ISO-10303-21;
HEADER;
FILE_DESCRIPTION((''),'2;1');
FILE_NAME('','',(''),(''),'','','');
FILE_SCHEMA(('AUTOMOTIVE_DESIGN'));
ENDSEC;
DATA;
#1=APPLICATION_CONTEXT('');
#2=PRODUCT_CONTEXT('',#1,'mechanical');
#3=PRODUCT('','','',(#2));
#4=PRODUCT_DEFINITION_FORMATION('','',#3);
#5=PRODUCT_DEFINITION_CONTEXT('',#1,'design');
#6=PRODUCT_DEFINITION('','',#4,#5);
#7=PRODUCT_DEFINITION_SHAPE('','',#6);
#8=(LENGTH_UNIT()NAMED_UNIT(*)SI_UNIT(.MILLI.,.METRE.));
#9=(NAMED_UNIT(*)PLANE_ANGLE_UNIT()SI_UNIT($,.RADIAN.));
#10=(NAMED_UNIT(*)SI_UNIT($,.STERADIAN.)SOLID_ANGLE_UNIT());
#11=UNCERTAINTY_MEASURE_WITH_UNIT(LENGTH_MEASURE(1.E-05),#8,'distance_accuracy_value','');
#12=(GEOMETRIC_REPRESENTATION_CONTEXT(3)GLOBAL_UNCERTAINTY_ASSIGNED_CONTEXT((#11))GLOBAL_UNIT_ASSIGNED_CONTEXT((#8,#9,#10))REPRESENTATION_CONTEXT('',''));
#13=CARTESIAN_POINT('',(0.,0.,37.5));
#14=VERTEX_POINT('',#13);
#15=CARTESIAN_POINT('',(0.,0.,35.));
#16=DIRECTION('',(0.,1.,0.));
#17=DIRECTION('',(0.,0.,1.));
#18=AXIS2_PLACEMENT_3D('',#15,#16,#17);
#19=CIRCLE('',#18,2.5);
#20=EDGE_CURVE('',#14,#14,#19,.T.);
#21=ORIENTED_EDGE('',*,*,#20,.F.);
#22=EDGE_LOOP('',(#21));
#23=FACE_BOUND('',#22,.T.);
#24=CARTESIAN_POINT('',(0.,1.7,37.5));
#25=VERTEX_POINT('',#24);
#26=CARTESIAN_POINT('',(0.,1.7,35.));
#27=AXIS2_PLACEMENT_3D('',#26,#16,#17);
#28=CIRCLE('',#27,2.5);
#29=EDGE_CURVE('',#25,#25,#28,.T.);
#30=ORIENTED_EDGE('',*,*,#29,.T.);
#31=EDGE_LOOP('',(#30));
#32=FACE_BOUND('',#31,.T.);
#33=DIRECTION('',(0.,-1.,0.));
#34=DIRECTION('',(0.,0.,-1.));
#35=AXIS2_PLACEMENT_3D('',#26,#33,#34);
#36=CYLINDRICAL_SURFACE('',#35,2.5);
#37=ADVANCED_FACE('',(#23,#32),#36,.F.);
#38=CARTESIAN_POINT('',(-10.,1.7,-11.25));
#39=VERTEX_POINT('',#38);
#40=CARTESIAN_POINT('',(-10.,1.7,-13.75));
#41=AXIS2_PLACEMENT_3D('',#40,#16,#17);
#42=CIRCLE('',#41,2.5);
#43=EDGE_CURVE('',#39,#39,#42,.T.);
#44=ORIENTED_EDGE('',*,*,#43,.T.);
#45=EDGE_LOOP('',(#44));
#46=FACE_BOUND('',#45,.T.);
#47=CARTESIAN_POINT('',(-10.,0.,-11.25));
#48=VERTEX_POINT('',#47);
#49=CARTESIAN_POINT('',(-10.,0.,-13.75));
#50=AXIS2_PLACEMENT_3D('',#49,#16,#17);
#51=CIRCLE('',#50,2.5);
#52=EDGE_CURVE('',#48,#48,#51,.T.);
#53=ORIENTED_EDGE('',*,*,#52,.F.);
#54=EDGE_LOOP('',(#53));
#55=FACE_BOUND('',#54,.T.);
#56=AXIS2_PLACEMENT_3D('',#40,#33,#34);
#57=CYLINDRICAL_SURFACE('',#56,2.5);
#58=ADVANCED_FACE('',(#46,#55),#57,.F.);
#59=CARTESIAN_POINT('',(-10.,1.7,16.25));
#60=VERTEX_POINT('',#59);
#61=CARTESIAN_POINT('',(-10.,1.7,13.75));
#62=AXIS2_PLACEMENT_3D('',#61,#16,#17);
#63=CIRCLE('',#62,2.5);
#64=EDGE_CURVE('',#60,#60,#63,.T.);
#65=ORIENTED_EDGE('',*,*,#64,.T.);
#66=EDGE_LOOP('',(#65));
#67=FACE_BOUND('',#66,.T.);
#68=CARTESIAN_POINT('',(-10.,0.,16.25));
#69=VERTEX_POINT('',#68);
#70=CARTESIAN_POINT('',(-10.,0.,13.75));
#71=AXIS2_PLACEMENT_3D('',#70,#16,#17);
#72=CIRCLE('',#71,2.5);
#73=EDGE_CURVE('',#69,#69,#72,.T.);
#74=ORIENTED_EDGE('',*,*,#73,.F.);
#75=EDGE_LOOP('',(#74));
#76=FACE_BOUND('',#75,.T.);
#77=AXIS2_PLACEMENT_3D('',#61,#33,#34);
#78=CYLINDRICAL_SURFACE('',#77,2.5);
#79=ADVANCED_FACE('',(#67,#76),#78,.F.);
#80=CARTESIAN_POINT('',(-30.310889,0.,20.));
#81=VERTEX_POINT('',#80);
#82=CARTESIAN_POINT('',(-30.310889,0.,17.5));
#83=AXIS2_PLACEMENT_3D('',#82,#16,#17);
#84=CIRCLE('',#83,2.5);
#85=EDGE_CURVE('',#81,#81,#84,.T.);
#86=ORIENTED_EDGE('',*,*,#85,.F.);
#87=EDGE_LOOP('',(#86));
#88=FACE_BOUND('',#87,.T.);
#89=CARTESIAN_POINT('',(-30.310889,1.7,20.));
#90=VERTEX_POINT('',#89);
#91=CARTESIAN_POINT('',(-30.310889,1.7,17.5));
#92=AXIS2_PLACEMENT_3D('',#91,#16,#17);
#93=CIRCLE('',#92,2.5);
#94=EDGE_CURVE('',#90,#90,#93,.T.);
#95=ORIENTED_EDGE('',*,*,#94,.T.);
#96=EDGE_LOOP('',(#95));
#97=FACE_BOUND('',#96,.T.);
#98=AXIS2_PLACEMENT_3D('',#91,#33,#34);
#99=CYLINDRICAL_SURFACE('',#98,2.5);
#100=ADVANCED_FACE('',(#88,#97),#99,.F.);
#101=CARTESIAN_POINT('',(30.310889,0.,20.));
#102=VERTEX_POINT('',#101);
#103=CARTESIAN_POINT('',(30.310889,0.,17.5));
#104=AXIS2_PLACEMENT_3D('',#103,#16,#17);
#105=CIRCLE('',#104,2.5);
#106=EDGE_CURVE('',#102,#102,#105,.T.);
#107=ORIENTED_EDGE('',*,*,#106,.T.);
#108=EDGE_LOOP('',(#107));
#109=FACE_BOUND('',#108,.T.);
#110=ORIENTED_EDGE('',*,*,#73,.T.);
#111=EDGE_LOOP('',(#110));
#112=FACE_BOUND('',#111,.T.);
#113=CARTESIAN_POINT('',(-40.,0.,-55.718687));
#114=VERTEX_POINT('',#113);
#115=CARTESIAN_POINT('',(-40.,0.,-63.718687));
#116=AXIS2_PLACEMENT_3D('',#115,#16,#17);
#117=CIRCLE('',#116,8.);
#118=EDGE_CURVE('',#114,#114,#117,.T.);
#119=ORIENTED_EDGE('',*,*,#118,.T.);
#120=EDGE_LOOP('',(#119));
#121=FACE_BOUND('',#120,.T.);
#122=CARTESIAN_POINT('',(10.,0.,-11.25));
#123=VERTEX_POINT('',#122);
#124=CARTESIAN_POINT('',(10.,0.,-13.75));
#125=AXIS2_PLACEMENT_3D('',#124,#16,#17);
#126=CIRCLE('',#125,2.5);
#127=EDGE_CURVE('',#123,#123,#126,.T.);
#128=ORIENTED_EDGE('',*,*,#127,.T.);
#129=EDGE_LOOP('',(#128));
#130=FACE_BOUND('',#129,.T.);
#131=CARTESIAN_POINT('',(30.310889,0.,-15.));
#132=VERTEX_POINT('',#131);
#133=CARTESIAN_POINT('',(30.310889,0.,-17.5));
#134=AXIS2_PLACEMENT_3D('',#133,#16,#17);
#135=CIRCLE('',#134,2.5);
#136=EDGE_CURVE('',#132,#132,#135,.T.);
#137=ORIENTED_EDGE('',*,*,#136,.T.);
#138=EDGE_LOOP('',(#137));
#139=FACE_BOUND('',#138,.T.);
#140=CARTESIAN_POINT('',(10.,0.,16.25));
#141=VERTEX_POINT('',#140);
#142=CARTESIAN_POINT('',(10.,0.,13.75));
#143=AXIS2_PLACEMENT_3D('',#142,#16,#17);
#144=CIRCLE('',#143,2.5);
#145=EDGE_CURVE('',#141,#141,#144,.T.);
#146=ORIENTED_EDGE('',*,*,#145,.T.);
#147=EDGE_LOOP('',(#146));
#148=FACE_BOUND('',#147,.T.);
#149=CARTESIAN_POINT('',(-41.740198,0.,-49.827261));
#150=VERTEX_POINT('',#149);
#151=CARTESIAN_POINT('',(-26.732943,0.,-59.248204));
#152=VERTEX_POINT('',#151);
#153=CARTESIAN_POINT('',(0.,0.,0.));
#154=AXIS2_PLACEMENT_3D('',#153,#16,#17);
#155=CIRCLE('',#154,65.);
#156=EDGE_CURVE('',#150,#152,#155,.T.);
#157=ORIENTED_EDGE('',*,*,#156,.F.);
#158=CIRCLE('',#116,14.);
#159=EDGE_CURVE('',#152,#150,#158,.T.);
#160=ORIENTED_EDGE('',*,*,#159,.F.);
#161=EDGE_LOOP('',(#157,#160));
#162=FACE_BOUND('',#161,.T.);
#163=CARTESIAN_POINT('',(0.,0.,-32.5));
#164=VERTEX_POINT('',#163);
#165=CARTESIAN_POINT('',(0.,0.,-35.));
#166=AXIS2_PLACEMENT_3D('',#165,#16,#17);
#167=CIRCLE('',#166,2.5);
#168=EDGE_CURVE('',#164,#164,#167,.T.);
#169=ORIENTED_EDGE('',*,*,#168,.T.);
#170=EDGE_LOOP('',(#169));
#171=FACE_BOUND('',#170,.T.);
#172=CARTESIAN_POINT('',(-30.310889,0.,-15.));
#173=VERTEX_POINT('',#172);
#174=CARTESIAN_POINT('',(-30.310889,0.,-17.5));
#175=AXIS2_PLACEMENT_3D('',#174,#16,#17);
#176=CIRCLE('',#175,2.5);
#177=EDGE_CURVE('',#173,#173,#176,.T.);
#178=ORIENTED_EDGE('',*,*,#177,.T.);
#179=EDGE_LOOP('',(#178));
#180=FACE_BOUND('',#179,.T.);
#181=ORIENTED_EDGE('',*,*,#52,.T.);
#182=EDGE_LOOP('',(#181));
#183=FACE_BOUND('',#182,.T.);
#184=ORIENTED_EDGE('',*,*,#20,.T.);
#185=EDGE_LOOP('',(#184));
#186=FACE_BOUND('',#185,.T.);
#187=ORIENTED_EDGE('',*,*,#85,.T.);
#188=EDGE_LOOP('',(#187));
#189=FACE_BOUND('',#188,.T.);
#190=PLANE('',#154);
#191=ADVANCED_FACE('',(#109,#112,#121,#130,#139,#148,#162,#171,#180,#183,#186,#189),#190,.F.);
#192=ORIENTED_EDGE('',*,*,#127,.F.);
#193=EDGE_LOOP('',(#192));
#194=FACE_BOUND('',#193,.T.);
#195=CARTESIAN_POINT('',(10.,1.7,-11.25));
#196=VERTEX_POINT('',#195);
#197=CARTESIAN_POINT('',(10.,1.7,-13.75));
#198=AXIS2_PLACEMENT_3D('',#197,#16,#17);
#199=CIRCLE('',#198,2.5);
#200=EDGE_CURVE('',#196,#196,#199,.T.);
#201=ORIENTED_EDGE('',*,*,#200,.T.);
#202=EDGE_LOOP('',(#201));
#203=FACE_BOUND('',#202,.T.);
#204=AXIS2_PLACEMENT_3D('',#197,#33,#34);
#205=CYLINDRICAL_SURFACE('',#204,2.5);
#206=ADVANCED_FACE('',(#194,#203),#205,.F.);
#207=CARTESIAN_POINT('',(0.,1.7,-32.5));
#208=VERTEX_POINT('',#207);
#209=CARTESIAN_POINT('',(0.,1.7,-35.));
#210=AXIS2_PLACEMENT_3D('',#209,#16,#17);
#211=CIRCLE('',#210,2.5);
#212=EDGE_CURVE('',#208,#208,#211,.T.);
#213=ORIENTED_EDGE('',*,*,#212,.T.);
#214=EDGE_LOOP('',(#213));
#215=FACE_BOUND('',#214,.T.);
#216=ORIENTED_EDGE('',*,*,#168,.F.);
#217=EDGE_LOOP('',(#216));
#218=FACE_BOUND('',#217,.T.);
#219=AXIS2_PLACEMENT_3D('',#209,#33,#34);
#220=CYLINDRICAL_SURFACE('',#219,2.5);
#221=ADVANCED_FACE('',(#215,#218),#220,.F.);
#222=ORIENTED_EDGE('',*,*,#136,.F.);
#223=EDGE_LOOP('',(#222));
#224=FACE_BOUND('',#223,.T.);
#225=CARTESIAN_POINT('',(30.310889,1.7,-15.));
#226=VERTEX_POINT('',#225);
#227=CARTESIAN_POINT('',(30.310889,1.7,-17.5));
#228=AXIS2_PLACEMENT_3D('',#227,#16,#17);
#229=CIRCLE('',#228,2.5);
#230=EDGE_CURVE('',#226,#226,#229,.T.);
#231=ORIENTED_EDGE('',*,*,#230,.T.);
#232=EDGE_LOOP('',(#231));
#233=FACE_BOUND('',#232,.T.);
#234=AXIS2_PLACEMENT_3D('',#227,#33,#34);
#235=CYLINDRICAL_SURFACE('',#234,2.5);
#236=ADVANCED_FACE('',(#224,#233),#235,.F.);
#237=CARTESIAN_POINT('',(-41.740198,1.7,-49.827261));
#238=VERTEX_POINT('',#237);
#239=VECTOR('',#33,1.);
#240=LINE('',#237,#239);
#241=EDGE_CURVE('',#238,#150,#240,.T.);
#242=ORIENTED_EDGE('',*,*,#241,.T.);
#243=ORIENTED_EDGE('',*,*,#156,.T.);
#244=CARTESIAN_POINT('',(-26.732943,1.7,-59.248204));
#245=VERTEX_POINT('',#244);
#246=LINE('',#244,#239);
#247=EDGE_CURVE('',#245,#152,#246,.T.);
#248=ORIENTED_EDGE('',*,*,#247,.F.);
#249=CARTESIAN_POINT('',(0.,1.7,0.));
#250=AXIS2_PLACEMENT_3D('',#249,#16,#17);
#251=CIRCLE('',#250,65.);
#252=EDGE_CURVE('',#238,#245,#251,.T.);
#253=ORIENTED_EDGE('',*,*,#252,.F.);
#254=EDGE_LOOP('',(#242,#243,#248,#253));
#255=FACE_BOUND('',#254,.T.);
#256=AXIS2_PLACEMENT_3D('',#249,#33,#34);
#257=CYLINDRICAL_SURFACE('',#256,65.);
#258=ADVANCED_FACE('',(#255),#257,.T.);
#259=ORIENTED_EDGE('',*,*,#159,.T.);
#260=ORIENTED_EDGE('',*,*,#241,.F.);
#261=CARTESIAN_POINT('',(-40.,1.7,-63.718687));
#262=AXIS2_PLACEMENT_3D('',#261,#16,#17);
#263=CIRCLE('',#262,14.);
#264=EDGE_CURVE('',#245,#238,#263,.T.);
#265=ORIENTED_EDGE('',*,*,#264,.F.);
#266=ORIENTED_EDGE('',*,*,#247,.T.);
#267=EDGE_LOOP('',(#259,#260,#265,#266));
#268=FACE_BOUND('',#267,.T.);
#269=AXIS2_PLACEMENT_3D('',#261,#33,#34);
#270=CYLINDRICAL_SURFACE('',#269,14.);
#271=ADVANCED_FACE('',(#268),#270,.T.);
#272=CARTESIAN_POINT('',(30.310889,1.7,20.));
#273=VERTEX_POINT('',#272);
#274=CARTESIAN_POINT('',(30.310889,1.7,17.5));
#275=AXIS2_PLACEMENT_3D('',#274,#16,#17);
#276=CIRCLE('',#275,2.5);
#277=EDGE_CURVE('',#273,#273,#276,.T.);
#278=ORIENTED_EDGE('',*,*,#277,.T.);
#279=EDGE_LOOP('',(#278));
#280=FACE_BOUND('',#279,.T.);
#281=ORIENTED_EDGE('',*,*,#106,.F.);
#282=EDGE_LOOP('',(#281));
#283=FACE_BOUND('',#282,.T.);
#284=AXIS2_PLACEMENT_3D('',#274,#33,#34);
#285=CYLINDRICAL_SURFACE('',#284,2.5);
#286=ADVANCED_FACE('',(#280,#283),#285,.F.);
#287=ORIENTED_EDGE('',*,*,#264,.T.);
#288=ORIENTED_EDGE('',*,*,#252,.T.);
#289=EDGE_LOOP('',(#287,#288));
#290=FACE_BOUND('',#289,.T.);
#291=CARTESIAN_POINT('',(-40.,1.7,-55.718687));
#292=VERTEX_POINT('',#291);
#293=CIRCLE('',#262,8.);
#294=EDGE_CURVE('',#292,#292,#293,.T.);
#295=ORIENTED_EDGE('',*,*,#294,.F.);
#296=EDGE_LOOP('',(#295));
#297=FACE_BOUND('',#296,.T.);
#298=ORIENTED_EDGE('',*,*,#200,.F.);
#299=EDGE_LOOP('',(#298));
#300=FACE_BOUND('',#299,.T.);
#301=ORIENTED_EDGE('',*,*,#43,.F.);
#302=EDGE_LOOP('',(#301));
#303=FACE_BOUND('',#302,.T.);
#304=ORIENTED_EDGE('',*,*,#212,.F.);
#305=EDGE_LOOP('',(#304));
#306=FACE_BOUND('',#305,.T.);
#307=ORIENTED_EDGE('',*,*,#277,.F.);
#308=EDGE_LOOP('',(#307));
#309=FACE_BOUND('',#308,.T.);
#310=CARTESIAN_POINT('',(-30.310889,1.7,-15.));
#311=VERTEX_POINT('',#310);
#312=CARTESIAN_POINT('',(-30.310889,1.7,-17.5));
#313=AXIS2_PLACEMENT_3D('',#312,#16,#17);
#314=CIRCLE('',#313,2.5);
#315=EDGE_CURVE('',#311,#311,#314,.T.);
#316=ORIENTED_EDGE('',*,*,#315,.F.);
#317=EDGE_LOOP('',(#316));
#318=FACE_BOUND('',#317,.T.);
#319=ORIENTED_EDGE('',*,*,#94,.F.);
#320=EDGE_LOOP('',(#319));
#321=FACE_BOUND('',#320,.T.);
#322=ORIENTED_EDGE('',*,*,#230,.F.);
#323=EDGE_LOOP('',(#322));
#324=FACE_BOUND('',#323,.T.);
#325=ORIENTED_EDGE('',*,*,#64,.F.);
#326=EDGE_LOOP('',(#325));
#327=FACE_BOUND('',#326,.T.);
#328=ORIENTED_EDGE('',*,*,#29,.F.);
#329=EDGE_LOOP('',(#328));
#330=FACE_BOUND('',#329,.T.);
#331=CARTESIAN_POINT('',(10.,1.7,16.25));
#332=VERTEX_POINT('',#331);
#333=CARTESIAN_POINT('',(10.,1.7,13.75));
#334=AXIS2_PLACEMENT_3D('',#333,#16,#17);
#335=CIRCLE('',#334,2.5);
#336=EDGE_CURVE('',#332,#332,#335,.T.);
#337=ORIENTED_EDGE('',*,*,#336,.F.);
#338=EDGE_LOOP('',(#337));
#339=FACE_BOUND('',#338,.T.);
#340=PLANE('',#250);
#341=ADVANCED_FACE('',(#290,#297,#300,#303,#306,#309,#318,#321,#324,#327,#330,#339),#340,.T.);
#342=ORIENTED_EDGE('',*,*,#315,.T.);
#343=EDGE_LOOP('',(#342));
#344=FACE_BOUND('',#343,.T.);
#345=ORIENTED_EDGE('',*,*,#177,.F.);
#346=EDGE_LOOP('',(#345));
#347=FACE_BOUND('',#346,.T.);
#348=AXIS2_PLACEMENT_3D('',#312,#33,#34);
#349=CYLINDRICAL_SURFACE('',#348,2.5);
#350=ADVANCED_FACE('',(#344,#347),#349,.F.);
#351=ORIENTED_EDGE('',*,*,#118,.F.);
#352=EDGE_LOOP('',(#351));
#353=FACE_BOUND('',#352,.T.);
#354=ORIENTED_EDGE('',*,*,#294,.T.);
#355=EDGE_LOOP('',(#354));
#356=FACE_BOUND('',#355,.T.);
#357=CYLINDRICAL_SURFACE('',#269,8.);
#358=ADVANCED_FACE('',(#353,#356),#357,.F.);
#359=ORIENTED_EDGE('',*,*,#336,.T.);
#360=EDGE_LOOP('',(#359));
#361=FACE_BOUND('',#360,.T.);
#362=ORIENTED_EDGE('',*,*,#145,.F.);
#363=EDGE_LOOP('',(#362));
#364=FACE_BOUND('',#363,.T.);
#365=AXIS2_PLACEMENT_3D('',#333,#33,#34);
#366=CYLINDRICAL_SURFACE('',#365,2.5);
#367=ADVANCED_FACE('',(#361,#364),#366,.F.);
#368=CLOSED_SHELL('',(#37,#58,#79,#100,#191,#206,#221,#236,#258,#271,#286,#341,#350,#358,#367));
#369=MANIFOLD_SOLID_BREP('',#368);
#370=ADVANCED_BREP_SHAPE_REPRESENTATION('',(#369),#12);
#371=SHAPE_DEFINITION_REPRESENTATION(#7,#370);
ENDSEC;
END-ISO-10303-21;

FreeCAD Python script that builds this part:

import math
import FreeCAD as App
import Part
import Sketcher

V = App.Vector
Q = App.Units.Quantity

doc = App.newDocument("Part")
params = doc.addObject("Spreadsheet::Sheet", "Params")
for row, (alias, value) in enumerate([
    ("sketch1_diameter", "5 mm"),
    ("sketch1_diameter2", "16 mm"),
    ("sketch1_radius", "65 mm"),
    ("sketch1_radius2", "14 mm"),
    ("pad1_length", "1.7 mm"),
], start=1):
    params.set(f"A{row}", alias)
    params.set(f"B{row}", "=" + value)
    params.setAlias(f"B{row}", alias)

body = doc.addObject("PartDesign::Body", "Body")

sketch1 = body.newObject("Sketcher::SketchObject", "Sketch")
sketch1.AttachmentSupport = (doc.getObject("XZ_Plane"), [""])
sketch1.MapMode = "FlatFace"
sketch1.addGeometry([
    Part.ArcOfCircle(Part.Circle(V(0, 0, 0), V(0, 0, 1), 65), math.radians(-114.28502), math.radians(230.047158)),
    Part.ArcOfCircle(Part.Circle(V(-40, -63.718687, 0), V(0, 0, 1), 14), math.radians(97.140323), math.radians(378.621815)),
    Part.Circle(V(-30.310889, 17.5, 0), V(0, 0, 1), 2.5),
    Part.Circle(V(-10, 13.75, 0), V(0, 0, 1), 2.5),
    Part.Circle(V(0, 35, 0), V(0, 0, 1), 2.5),
    Part.Circle(V(10, 13.75, 0), V(0, 0, 1), 2.5),
    Part.Circle(V(30.310889, 17.5, 0), V(0, 0, 1), 2.5),
    Part.Circle(V(-30.310889, -17.5, 0), V(0, 0, 1), 2.5),
    Part.Circle(V(-10, -13.75, 0), V(0, 0, 1), 2.5),
    Part.Circle(V(10, -13.75, 0), V(0, 0, 1), 2.5),
    Part.Circle(V(30.310889, -17.5, 0), V(0, 0, 1), 2.5),
    Part.Circle(V(0, -35, 0), V(0, 0, 1), 2.5),
    Part.Circle(V(-40, -63.718687, 0), V(0, 0, 1), 8),
], False)
sketch1.addConstraint([
    Sketcher.Constraint("Coincident", 0, 1, 1, 2),
    Sketcher.Constraint("Coincident", 1, 1, 0, 2),
    Sketcher.Constraint("Coincident", 0, 3, -1, 1),
    Sketcher.Constraint("Coincident", 12, 3, 1, 3),
    Sketcher.Constraint("Equal", 2, 3),
    Sketcher.Constraint("Equal", 3, 4),
    Sketcher.Constraint("Equal", 4, 5),
    Sketcher.Constraint("Equal", 5, 6),
    Sketcher.Constraint("Equal", 6, 7),
    Sketcher.Constraint("Equal", 7, 8),
    Sketcher.Constraint("Equal", 8, 9),
    Sketcher.Constraint("Equal", 9, 10),
    Sketcher.Constraint("Equal", 10, 11),
    Sketcher.Constraint("Symmetric", 6, 3, 7, 3, -1, 1),
    Sketcher.Constraint("Symmetric", 5, 3, 8, 3, -1, 1),
    Sketcher.Constraint("Symmetric", 3, 3, 9, 3, -1, 1),
    Sketcher.Constraint("Symmetric", 2, 3, 10, 3, -1, 1),
    Sketcher.Constraint("Symmetric", 4, 3, 11, 3, -1, 1),
    Sketcher.Constraint("Symmetric", 3, 3, 5, 3, -2),
    Sketcher.Constraint("Symmetric", 2, 3, 6, 3, -2),
    Sketcher.Constraint("PointOnObject", 4, 3, -2),
    Sketcher.Constraint("Diameter", 2, Q("5 mm")),
    Sketcher.Constraint("Diameter", 12, Q("16 mm")),
    Sketcher.Constraint("Radius", 0, Q("65 mm")),
    Sketcher.Constraint("Radius", 1, Q("14 mm")),
    Sketcher.Constraint("DistanceX", 1, 3, -1, 1, Q("40 mm")),
    Sketcher.Constraint("DistanceX", 3, 3, -1, 1, Q("10 mm")),
    Sketcher.Constraint("DistanceY", -1, 1, 4, 3, Q("35 mm")),
    Sketcher.Constraint("DistanceY", 7, 3, 2, 3, Q("35 mm")),
    Sketcher.Constraint("DistanceY", 8, 3, 3, 3, Q("27.5 mm")),
    Sketcher.Constraint("DistanceX", 2, 3, -1, 1, Q("30.310889 mm")),
    Sketcher.Constraint("DistanceY", 1, 1, -1, 1, Q("49.827261 mm")),
])
sketch1.setExpression("Constraints[21]", "Params.sketch1_diameter")
sketch1.setExpression("Constraints[22]", "Params.sketch1_diameter2")
sketch1.setExpression("Constraints[23]", "Params.sketch1_radius")
sketch1.setExpression("Constraints[24]", "Params.sketch1_radius2")
pad1 = body.newObject("PartDesign::Pad", "Pad")
pad1.Profile = sketch1
pad1.setExpression("Length", "Params.pad1_length")
pad1.Reversed = True

doc.recompute()
